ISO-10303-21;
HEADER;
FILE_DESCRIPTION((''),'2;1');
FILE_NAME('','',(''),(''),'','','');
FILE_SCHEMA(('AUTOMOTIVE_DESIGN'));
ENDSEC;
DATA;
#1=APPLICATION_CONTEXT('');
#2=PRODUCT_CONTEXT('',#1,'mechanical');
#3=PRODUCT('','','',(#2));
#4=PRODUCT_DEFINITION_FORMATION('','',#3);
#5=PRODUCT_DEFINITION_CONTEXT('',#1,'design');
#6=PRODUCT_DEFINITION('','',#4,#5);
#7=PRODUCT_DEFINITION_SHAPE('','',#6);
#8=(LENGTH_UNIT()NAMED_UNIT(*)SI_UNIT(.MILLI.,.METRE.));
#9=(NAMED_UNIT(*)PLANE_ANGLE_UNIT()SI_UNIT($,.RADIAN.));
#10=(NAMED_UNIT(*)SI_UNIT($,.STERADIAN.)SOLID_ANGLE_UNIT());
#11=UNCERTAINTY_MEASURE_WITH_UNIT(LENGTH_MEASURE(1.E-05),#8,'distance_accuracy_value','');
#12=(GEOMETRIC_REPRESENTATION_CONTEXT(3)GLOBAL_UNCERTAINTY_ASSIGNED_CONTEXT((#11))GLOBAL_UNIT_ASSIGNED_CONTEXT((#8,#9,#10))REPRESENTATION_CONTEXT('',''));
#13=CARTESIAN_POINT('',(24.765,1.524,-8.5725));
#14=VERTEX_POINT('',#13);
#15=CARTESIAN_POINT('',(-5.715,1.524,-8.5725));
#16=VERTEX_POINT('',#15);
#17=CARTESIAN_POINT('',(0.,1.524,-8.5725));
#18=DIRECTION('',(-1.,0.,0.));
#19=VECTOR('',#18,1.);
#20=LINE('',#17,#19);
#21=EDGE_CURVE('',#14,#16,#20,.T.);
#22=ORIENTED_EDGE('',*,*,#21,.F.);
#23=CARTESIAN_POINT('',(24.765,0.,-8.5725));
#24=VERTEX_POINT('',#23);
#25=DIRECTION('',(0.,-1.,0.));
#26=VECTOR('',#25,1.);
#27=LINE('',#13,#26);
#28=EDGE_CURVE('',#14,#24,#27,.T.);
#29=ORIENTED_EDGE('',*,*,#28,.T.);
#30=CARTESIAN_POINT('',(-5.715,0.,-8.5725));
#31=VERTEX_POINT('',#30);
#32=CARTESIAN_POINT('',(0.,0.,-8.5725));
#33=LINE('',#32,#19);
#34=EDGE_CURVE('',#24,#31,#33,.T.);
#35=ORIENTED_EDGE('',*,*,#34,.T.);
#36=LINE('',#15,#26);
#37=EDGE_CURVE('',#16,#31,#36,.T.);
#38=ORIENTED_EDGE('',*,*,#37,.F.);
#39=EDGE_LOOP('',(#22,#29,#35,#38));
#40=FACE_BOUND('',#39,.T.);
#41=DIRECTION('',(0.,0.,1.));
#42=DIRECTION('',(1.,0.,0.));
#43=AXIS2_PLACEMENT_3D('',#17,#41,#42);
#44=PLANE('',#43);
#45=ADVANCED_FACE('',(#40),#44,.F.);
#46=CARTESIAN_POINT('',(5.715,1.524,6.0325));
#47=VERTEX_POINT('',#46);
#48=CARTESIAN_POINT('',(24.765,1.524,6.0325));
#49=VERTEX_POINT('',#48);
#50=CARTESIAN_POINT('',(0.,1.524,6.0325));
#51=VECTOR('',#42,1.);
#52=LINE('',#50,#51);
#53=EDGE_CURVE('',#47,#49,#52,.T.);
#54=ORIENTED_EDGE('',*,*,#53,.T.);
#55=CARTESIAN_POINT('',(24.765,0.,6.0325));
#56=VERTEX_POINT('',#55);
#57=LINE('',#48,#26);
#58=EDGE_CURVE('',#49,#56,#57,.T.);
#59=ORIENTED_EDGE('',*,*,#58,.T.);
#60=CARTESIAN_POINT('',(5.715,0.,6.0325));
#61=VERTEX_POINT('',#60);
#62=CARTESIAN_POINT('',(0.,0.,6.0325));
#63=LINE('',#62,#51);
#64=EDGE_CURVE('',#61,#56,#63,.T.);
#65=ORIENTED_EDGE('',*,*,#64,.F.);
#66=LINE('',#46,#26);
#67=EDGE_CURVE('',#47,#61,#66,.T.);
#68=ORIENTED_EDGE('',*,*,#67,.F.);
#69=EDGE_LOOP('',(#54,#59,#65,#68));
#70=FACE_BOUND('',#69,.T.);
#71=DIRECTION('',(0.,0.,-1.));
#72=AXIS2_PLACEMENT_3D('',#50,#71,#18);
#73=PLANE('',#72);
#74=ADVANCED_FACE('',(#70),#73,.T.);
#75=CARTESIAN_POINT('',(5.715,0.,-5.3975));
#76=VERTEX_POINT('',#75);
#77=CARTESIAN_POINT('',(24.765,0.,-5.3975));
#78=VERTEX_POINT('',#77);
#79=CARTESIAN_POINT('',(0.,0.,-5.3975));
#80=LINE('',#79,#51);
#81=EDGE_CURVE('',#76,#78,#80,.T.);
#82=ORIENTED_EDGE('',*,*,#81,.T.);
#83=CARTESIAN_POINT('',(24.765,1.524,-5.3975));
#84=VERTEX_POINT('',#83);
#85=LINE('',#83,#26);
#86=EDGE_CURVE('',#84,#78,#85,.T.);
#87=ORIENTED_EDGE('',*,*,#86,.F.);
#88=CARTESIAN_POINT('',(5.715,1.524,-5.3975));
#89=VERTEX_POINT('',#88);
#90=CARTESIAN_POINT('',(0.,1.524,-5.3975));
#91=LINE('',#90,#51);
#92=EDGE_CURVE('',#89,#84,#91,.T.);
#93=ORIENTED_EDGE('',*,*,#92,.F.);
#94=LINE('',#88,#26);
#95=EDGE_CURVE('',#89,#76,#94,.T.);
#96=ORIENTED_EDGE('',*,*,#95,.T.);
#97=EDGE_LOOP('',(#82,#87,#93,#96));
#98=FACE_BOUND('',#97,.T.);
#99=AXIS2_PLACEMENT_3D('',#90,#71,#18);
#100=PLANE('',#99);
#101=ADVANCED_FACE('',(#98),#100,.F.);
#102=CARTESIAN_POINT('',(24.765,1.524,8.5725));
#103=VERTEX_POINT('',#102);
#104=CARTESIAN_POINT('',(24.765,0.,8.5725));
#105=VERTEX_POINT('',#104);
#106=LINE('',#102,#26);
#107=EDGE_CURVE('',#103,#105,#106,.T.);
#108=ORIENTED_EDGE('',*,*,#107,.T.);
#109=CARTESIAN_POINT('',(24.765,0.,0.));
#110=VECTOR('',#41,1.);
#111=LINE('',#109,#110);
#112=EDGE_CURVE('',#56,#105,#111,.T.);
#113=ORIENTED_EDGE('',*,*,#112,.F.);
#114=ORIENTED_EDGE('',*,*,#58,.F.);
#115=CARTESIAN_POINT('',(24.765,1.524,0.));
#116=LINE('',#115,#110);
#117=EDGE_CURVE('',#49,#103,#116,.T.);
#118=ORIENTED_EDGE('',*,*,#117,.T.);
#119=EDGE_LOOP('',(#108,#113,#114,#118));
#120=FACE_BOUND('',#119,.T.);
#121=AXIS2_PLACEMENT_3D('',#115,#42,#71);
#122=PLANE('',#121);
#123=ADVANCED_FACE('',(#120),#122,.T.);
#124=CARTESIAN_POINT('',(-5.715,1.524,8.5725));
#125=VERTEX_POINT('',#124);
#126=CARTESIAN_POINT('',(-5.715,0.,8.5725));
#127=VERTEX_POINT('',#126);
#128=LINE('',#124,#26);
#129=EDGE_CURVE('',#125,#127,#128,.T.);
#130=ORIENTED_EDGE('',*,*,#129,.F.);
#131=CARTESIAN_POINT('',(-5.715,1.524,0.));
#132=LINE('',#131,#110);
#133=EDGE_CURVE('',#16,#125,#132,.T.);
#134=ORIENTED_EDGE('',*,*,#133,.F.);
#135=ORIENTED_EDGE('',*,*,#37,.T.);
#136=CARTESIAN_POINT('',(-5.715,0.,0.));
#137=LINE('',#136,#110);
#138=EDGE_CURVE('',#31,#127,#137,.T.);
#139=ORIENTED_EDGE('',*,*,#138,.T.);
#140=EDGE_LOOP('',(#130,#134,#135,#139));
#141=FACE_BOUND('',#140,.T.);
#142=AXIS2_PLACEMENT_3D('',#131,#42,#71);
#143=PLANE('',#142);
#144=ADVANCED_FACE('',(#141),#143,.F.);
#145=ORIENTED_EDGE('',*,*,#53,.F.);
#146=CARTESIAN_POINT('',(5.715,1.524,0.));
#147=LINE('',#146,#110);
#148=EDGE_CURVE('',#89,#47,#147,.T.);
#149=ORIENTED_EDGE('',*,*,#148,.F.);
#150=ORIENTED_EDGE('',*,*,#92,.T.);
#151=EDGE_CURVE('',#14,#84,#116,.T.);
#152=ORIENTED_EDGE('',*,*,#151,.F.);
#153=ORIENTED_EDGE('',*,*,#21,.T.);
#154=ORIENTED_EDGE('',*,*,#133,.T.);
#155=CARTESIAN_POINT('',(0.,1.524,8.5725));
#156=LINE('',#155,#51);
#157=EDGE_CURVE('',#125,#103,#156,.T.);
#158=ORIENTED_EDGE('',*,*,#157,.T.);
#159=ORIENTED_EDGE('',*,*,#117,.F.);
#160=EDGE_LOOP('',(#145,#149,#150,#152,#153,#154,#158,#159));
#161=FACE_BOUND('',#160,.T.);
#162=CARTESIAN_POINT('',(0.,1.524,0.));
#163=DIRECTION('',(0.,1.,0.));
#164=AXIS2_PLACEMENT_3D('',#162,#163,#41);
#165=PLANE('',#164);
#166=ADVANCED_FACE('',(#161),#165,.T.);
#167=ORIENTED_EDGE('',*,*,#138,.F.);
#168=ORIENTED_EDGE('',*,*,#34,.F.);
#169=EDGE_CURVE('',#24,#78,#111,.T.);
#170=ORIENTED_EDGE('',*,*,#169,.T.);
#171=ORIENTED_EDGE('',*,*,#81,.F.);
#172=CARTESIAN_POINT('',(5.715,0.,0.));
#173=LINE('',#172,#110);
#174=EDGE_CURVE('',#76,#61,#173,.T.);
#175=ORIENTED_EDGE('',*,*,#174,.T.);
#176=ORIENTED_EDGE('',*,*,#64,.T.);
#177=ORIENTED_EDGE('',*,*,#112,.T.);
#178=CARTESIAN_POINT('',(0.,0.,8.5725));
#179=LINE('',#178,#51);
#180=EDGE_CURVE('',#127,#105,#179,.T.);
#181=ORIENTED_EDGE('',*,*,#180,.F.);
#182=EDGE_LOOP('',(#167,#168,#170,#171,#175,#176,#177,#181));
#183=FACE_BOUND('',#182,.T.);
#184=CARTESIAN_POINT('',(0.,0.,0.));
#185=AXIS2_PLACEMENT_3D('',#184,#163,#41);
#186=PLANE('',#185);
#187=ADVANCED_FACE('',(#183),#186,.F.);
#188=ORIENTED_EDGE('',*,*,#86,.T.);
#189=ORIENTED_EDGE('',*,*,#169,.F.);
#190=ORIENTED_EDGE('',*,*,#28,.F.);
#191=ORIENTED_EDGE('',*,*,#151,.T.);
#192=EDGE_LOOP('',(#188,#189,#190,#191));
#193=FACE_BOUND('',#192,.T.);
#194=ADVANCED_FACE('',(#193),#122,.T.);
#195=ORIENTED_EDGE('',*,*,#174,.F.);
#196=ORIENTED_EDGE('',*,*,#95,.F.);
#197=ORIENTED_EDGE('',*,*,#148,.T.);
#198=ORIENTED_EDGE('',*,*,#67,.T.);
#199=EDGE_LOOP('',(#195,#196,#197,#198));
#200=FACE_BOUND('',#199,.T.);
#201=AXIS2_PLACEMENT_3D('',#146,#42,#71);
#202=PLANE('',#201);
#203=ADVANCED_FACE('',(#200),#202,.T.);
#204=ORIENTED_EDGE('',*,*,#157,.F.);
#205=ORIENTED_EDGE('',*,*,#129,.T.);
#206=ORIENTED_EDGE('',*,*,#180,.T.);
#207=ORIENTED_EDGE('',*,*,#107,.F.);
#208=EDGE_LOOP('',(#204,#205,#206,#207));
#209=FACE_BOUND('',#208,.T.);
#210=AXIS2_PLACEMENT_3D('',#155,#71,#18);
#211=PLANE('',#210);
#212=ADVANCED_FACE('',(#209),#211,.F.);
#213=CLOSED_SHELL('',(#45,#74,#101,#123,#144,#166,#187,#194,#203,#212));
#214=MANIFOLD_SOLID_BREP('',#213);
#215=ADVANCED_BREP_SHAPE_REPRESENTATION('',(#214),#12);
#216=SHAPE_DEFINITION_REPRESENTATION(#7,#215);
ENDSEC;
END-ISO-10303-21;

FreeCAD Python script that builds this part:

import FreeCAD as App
import Part
import Sketcher

V = App.Vector
Q = App.Units.Quantity

doc = App.newDocument("Part")
body = doc.addObject("PartDesign::Body", "Body")

# Sketch on XZ plane
sketch1 = doc.addObject("Sketcher::SketchObject", "Sketch")
body.addObject(sketch1)
sketch1.AttachmentSupport = (doc.XZ_Plane, [""])
sketch1.MapMode = "FlatFace"
sketch1.addGeometry([
    Part.LineSegment(V(24.8, 8.6, 0), V(24.8, 6, 0)),  # 0
    Part.LineSegment(V(24.8, 6, 0), V(5.7, 6, 0)),  # 1
    Part.LineSegment(V(5.7, 6, 0), V(5.7, -5.4, 0)),  # 2
    Part.LineSegment(V(5.7, -5.4, 0), V(24.8, -5.4, 0)),  # 3
    Part.LineSegment(V(24.8, -5.4, 0), V(24.8, -8.6, 0)),  # 4
    Part.LineSegment(V(24.8, -8.6, 0), V(-5.7, -8.6, 0)),  # 5
    Part.LineSegment(V(-5.7, -8.6, 0), V(-5.7, 8.6, 0)),  # 6
    Part.LineSegment(V(-5.7, 8.6, 0), V(24.8, 8.6, 0)),  # 7
], False)
sketch1.addConstraint([
    Sketcher.Constraint("Coincident", 0, 2, 1, 1),
    Sketcher.Constraint("Coincident", 1, 2, 2, 1),
    Sketcher.Constraint("Coincident", 2, 2, 3, 1),
    Sketcher.Constraint("Coincident", 3, 2, 4, 1),
    Sketcher.Constraint("Coincident", 4, 2, 5, 1),
    Sketcher.Constraint("Coincident", 5, 2, 6, 1),
    Sketcher.Constraint("Coincident", 6, 2, 7, 1),
    Sketcher.Constraint("Coincident", 7, 2, 0, 1),
    Sketcher.Constraint("Vertical", 0),
    Sketcher.Constraint("Horizontal", 1),
    Sketcher.Constraint("Vertical", 2),
    Sketcher.Constraint("Horizontal", 3),
    Sketcher.Constraint("Vertical", 4),
    Sketcher.Constraint("Horizontal", 5),
    Sketcher.Constraint("Vertical", 6),
    Sketcher.Constraint("Horizontal", 7),
    Sketcher.Constraint("Symmetric", 4, 2, 7, 2, -1),
    Sketcher.Constraint("DistanceX", 5, 2, 5, 1, Q("1.2 in")),
    Sketcher.Constraint("DistanceY", 0, 2, 0, 1, Q("0.1 in")),
    Sketcher.Constraint("DistanceX", 1, 2, 1, 1, Q("0.75 in")),
    Sketcher.Constraint("DistanceY", 2, 2, 2, 1, Q("0.45 in")),
    Sketcher.Constraint("DistanceY", 4, 2, 4, 1, Q("0.125 in")),
    Sketcher.Constraint("DistanceX", -1, 1, 0, 2, Q("0.975 in")),
])
pad1 = doc.addObject("PartDesign::Pad", "Pad")
body.addObject(pad1)
pad1.Profile = sketch1
pad1.Length = Q("0.06 in")
pad1.Reversed = True

doc.recompute()
